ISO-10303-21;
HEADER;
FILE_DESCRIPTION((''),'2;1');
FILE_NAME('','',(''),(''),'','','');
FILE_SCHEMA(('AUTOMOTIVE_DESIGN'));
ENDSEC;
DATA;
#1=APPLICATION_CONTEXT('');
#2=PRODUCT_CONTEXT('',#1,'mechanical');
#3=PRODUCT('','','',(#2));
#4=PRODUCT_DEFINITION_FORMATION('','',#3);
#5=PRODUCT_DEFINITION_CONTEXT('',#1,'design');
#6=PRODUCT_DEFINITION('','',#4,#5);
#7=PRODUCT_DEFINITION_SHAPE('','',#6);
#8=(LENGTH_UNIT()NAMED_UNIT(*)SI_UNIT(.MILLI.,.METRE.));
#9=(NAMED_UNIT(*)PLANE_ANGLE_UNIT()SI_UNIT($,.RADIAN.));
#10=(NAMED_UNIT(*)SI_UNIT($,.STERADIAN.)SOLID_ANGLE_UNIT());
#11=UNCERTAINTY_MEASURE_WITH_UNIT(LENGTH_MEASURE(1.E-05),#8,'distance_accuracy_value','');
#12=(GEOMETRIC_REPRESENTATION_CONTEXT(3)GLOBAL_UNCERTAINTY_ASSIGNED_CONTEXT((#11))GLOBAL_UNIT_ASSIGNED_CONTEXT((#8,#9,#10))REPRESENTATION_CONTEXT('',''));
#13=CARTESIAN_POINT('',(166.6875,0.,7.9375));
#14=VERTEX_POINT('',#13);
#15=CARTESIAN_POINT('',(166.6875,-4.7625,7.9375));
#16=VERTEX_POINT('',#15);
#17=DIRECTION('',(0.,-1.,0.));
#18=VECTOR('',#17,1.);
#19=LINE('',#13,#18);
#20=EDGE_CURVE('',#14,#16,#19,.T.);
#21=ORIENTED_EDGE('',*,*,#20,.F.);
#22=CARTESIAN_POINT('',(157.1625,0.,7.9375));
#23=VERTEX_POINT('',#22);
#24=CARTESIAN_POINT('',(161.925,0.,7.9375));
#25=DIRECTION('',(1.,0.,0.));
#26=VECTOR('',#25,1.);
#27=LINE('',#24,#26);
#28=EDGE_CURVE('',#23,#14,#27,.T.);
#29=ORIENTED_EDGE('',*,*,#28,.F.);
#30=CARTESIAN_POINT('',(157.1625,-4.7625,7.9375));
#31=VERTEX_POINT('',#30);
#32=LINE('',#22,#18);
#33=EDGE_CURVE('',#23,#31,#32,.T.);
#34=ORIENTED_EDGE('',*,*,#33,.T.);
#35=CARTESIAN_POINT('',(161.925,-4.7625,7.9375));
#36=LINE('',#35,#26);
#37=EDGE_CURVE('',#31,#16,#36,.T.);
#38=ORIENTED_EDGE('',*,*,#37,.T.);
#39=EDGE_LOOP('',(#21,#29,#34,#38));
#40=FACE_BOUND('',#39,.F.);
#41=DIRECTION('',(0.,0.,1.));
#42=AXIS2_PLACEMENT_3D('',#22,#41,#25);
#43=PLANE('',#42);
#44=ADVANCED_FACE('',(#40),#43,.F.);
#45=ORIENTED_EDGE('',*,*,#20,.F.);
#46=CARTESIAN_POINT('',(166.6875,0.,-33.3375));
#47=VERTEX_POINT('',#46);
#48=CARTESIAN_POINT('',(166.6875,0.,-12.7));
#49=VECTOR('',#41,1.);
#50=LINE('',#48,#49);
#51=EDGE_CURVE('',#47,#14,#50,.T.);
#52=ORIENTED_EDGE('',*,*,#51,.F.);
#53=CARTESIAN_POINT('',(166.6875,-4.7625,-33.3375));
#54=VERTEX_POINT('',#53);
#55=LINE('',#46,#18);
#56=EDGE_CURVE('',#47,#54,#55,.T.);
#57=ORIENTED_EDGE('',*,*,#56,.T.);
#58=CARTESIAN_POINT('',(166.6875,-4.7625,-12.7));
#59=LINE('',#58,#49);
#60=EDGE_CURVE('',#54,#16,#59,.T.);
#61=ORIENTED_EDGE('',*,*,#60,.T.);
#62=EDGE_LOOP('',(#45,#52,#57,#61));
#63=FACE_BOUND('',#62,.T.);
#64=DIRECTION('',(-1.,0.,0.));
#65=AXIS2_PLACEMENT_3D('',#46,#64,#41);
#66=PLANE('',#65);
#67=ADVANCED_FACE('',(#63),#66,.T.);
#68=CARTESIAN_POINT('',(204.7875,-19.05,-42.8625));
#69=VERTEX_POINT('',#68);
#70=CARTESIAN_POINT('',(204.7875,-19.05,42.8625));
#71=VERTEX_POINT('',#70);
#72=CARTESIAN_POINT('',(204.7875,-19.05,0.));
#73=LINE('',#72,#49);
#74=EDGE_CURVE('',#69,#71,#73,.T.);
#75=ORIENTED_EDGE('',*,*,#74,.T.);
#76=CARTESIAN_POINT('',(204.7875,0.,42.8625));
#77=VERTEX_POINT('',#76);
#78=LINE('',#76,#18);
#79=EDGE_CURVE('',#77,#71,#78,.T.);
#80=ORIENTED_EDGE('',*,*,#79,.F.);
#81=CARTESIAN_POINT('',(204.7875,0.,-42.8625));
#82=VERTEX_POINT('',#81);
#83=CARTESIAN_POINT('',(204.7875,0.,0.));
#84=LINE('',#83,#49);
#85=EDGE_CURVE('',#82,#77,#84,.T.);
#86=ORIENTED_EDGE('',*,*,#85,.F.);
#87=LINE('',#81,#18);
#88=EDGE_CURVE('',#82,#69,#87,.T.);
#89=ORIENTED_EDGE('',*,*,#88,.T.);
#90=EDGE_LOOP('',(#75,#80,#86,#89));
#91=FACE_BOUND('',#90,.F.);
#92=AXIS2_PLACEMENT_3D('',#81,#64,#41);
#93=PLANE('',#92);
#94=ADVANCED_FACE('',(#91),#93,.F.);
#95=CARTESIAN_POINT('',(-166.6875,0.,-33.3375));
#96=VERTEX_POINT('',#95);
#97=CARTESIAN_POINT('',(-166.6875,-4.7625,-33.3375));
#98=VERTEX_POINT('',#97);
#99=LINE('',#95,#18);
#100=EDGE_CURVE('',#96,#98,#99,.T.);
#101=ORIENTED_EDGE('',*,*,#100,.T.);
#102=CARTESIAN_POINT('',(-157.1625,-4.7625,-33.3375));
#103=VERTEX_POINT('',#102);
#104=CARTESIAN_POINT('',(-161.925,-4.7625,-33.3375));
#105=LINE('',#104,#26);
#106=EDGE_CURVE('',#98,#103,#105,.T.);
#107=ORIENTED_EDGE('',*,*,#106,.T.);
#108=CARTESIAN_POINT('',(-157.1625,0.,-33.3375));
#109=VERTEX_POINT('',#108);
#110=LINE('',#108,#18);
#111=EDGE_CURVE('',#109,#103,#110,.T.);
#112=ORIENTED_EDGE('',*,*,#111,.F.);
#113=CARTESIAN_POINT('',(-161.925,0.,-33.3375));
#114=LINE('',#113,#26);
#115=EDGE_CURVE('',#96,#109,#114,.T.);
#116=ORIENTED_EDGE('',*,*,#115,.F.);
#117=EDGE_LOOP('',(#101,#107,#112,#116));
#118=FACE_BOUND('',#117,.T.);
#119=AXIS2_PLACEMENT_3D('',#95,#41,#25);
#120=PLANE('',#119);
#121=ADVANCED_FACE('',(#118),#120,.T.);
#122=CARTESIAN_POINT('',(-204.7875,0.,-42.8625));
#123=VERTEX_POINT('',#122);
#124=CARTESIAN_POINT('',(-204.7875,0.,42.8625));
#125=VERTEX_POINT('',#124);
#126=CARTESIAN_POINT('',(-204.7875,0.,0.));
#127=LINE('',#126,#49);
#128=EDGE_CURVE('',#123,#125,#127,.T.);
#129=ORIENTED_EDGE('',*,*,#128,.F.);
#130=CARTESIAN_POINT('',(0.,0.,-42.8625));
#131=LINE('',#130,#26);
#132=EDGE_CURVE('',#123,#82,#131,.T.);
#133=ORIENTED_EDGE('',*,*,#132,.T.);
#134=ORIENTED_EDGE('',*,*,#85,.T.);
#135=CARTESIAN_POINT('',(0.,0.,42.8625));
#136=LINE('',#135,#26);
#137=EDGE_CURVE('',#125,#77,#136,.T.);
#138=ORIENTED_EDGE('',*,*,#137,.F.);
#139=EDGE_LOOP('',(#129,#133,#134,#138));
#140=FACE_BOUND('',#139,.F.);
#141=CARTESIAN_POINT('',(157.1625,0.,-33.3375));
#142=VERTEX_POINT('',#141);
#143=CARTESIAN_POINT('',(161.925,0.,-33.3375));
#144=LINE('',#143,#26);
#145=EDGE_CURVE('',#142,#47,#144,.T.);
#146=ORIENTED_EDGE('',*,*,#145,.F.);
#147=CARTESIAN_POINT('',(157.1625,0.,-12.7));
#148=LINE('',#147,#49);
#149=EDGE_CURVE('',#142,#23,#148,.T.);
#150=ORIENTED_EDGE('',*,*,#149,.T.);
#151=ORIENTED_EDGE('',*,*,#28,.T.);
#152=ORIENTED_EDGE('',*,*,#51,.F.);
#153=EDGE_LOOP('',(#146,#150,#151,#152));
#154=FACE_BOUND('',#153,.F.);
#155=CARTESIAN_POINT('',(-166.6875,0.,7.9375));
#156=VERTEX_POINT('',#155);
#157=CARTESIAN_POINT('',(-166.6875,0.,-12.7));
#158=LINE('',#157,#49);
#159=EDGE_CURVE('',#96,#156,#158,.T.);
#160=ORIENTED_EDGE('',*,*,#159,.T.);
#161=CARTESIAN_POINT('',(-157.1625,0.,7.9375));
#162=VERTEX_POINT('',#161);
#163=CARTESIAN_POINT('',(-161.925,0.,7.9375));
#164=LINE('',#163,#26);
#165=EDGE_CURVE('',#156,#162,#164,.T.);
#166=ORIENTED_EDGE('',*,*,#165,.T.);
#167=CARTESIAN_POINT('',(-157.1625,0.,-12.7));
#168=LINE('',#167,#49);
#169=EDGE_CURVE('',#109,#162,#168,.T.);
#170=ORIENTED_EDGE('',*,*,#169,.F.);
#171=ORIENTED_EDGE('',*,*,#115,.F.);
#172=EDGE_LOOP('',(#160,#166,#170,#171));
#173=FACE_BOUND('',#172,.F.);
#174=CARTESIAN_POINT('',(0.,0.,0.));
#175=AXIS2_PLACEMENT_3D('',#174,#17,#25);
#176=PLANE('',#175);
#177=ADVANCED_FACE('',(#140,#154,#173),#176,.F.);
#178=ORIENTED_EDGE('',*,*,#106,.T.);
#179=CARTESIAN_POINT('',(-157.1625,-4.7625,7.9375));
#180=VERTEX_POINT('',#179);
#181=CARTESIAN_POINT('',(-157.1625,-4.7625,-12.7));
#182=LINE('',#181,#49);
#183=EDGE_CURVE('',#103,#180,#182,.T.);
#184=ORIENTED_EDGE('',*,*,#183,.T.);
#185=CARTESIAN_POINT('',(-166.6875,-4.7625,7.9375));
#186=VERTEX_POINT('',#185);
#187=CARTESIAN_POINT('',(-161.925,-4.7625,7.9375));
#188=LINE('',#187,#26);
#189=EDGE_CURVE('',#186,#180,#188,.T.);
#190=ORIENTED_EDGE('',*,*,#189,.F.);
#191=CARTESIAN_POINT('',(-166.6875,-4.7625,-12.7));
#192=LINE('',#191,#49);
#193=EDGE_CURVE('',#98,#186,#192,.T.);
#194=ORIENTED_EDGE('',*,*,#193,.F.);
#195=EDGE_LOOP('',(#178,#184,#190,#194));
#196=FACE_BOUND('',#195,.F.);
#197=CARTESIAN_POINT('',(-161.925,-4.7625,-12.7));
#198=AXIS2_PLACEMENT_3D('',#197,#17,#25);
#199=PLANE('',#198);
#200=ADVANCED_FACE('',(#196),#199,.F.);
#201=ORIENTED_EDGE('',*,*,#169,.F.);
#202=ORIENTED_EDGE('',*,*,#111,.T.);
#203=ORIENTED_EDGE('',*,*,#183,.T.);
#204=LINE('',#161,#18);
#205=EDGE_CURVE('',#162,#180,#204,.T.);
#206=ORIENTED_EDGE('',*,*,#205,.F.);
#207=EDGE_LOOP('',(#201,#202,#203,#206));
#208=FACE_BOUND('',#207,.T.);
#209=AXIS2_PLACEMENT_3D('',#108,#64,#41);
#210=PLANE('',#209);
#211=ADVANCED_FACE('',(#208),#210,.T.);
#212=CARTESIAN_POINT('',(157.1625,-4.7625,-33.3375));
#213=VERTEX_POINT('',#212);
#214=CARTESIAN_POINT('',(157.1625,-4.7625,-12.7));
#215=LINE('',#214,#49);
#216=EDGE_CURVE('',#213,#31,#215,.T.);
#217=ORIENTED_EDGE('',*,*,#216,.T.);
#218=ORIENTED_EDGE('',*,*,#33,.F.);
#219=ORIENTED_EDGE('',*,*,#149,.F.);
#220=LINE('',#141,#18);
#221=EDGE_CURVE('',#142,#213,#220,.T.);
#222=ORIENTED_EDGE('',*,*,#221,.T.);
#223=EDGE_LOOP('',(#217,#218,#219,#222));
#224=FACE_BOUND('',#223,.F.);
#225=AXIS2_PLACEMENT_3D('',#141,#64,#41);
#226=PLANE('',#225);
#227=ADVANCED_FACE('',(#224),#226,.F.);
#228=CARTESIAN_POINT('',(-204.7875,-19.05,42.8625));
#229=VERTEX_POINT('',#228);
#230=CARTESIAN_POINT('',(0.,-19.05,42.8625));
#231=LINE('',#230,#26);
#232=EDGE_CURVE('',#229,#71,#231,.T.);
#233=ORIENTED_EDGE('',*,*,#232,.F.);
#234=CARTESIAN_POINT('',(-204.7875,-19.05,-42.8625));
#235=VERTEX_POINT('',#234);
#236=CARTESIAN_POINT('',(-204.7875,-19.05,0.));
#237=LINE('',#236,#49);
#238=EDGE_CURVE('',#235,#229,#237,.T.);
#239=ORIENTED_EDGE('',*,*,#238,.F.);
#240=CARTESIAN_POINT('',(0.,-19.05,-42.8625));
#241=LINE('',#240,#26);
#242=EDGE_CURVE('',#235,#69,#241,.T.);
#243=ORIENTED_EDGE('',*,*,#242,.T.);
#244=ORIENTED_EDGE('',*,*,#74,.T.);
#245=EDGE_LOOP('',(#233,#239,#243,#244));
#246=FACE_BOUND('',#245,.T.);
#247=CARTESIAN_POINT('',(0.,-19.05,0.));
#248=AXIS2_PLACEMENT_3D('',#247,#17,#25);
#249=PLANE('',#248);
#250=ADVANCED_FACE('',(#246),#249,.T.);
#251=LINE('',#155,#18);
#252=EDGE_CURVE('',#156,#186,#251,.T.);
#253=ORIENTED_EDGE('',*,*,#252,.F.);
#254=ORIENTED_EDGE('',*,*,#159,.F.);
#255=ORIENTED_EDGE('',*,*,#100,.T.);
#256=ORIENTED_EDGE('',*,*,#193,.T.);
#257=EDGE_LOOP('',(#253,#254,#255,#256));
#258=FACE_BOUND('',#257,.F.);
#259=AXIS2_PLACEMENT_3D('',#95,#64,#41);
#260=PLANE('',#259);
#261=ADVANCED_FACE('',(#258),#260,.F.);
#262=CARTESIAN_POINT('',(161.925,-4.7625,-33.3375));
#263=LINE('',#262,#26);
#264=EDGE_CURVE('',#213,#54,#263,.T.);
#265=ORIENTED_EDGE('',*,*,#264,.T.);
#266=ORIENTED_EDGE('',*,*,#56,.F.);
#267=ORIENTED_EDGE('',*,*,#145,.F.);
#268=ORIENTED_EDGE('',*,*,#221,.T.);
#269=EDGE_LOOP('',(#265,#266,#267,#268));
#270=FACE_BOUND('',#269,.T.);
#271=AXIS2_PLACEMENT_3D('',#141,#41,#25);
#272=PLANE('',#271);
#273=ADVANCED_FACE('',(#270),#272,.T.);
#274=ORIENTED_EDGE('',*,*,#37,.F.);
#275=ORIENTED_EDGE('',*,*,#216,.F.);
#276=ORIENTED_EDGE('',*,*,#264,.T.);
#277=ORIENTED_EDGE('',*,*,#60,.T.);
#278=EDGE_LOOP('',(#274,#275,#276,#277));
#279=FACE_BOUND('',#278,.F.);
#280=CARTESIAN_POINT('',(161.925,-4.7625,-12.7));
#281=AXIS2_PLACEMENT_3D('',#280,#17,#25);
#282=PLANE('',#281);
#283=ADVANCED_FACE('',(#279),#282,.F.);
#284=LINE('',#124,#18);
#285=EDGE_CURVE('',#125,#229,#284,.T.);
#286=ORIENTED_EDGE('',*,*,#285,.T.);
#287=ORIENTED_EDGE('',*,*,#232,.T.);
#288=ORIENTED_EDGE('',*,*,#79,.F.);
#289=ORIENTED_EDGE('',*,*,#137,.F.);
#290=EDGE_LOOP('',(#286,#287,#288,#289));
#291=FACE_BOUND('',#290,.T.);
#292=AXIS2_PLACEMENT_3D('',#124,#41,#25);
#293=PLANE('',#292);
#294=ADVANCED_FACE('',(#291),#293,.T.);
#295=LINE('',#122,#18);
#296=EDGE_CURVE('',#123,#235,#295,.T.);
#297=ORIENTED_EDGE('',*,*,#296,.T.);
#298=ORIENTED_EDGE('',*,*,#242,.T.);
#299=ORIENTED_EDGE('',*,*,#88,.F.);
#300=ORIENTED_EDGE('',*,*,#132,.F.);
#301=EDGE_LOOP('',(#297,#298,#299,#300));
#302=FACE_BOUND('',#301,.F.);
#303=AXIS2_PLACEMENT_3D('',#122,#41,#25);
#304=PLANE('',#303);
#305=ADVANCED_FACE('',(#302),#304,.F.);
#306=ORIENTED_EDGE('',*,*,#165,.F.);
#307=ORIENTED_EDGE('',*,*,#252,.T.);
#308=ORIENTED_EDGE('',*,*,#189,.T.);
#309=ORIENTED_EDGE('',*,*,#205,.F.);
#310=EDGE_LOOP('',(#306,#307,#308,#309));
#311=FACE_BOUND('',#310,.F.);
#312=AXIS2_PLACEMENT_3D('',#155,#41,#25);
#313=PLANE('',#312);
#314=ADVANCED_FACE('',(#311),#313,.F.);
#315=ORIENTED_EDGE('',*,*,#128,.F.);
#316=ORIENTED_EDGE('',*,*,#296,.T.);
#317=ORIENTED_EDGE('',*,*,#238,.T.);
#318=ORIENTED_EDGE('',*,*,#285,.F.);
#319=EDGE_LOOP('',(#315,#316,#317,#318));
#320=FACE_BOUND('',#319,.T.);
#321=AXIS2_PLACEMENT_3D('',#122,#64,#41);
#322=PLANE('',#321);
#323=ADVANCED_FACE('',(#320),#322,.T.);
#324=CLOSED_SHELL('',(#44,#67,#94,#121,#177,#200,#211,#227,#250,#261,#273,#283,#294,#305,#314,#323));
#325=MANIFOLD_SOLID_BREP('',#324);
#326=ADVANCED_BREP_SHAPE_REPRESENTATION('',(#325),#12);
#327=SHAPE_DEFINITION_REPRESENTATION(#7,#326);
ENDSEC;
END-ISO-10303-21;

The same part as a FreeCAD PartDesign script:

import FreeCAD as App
import Part
import Sketcher

V = App.Vector
Q = App.Units.Quantity

doc = App.newDocument("Part")
body = doc.addObject("PartDesign::Body", "Body")

# Sketch on XZ plane
sketch1 = body.newObject("Sketcher::SketchObject", "Sketch")
sketch1.AttachmentSupport = (doc.getObject("XZ_Plane"), [""])
sketch1.MapMode = "FlatFace"
sketch1.addGeometry(Part.LineSegment(V(-205, 43, 0), V(-205, -43, 0)), False)
sketch1.addGeometry(Part.LineSegment(V(-205, -43, 0), V(205, -43, 0)), False)
sketch1.addGeometry(Part.LineSegment(V(205, -43, 0), V(205, 43, 0)), False)
sketch1.addGeometry(Part.LineSegment(V(205, 43, 0), V(-205, 43, 0)), False)
sketch1.addConstraint(Sketcher.Constraint("Coincident", 0, 2, 1, 1))
sketch1.addConstraint(Sketcher.Constraint("Coincident", 1, 2, 2, 1))
sketch1.addConstraint(Sketcher.Constraint("Coincident", 2, 2, 3, 1))
sketch1.addConstraint(Sketcher.Constraint("Coincident", 3, 2, 0, 1))
sketch1.addConstraint(Sketcher.Constraint("Vertical", 0))
sketch1.addConstraint(Sketcher.Constraint("Horizontal", 1))
sketch1.addConstraint(Sketcher.Constraint("Vertical", 2))
sketch1.addConstraint(Sketcher.Constraint("Horizontal", 3))
sketch1.addConstraint(Sketcher.Constraint("Symmetric", 0, 2, 2, 2, -1, 1))
sketch1.addConstraint(Sketcher.Constraint("DistanceX", 1, 1, 1, 2, Q("16.125 in")))
sketch1.addConstraint(Sketcher.Constraint("DistanceY", 0, 2, 0, 1, Q("3.375 in")))
pad1 = body.newObject("PartDesign::Pad", "Pad")
pad1.Profile = sketch1
pad1.Length = Q("0.75 in")

# Sketch on XZ plane
sketch2 = body.newObject("Sketcher::SketchObject", "Sketch001")
sketch2.AttachmentSupport = (doc.getObject("XZ_Plane"), [""])
sketch2.MapMode = "FlatFace"
sketch2.addGeometry(Part.LineSegment(V(157, 8, 0), V(157, -33, 0)), False)
sketch2.addGeometry(Part.LineSegment(V(157, -33, 0), V(167, -33, 0)), False)
sketch2.addGeometry(Part.LineSegment(V(167, -33, 0), V(167, 8, 0)), False)
sketch2.addGeometry(Part.LineSegment(V(167, 8, 0), V(157, 8, 0)), False)
sketch2.addGeometry(Part.LineSegment(V(-167, 8, 0), V(-167, -33, 0)), False)
sketch2.addGeometry(Part.LineSegment(V(-167, -33, 0), V(-157, -33, 0)), False)
sketch2.addGeometry(Part.LineSegment(V(-157, -33, 0), V(-157, 8, 0)), False)
sketch2.addGeometry(Part.LineSegment(V(-157, 8, 0), V(-167, 8, 0)), False)
sketch2.addConstraint(Sketcher.Constraint("Coincident", 0, 2, 1, 1))
sketch2.addConstraint(Sketcher.Constraint("Coincident", 1, 2, 2, 1))
sketch2.addConstraint(Sketcher.Constraint("Coincident", 2, 2, 3, 1))
sketch2.addConstraint(Sketcher.Constraint("Coincident", 3, 2, 0, 1))
sketch2.addConstraint(Sketcher.Constraint("Coincident", 4, 2, 5, 1))
sketch2.addConstraint(Sketcher.Constraint("Coincident", 5, 2, 6, 1))
sketch2.addConstraint(Sketcher.Constraint("Coincident", 6, 2, 7, 1))
sketch2.addConstraint(Sketcher.Constraint("Coincident", 7, 2, 4, 1))
sketch2.addConstraint(Sketcher.Constraint("Vertical", 0))
sketch2.addConstraint(Sketcher.Constraint("Horizontal", 1))
sketch2.addConstraint(Sketcher.Constraint("Vertical", 2))
sketch2.addConstraint(Sketcher.Constraint("Horizontal", 3))
sketch2.addConstraint(Sketcher.Constraint("Vertical", 4))
sketch2.addConstraint(Sketcher.Constraint("Horizontal", 5))
sketch2.addConstraint(Sketcher.Constraint("Vertical", 6))
sketch2.addConstraint(Sketcher.Constraint("Horizontal", 7))
sketch2.addConstraint(Sketcher.Constraint("Symmetric", 1, 2, 4, 2, -2))
sketch2.addConstraint(Sketcher.Constraint("Symmetric", 3, 2, 6, 2, -2))
sketch2.addConstraint(Sketcher.Constraint("DistanceX", 1, 1, 1, 2, Q("0.375 in")))
sketch2.addConstraint(Sketcher.Constraint("DistanceY", 0, 2, 0, 1, Q("1.625 in")))
sketch2.addConstraint(Sketcher.Constraint("DistanceX", 4, 2, 0, 2, Q("12.75 in")))
sketch2.addConstraint(Sketcher.Constraint("DistanceY", 0, 2, -1, 1, Q("1.3125 in")))
pocket1 = body.newObject("PartDesign::Pocket", "Pocket")
pocket1.Profile = sketch2
pocket1.Length = Q("0.1875 in")
pocket1.Reversed = True

doc.recompute()
